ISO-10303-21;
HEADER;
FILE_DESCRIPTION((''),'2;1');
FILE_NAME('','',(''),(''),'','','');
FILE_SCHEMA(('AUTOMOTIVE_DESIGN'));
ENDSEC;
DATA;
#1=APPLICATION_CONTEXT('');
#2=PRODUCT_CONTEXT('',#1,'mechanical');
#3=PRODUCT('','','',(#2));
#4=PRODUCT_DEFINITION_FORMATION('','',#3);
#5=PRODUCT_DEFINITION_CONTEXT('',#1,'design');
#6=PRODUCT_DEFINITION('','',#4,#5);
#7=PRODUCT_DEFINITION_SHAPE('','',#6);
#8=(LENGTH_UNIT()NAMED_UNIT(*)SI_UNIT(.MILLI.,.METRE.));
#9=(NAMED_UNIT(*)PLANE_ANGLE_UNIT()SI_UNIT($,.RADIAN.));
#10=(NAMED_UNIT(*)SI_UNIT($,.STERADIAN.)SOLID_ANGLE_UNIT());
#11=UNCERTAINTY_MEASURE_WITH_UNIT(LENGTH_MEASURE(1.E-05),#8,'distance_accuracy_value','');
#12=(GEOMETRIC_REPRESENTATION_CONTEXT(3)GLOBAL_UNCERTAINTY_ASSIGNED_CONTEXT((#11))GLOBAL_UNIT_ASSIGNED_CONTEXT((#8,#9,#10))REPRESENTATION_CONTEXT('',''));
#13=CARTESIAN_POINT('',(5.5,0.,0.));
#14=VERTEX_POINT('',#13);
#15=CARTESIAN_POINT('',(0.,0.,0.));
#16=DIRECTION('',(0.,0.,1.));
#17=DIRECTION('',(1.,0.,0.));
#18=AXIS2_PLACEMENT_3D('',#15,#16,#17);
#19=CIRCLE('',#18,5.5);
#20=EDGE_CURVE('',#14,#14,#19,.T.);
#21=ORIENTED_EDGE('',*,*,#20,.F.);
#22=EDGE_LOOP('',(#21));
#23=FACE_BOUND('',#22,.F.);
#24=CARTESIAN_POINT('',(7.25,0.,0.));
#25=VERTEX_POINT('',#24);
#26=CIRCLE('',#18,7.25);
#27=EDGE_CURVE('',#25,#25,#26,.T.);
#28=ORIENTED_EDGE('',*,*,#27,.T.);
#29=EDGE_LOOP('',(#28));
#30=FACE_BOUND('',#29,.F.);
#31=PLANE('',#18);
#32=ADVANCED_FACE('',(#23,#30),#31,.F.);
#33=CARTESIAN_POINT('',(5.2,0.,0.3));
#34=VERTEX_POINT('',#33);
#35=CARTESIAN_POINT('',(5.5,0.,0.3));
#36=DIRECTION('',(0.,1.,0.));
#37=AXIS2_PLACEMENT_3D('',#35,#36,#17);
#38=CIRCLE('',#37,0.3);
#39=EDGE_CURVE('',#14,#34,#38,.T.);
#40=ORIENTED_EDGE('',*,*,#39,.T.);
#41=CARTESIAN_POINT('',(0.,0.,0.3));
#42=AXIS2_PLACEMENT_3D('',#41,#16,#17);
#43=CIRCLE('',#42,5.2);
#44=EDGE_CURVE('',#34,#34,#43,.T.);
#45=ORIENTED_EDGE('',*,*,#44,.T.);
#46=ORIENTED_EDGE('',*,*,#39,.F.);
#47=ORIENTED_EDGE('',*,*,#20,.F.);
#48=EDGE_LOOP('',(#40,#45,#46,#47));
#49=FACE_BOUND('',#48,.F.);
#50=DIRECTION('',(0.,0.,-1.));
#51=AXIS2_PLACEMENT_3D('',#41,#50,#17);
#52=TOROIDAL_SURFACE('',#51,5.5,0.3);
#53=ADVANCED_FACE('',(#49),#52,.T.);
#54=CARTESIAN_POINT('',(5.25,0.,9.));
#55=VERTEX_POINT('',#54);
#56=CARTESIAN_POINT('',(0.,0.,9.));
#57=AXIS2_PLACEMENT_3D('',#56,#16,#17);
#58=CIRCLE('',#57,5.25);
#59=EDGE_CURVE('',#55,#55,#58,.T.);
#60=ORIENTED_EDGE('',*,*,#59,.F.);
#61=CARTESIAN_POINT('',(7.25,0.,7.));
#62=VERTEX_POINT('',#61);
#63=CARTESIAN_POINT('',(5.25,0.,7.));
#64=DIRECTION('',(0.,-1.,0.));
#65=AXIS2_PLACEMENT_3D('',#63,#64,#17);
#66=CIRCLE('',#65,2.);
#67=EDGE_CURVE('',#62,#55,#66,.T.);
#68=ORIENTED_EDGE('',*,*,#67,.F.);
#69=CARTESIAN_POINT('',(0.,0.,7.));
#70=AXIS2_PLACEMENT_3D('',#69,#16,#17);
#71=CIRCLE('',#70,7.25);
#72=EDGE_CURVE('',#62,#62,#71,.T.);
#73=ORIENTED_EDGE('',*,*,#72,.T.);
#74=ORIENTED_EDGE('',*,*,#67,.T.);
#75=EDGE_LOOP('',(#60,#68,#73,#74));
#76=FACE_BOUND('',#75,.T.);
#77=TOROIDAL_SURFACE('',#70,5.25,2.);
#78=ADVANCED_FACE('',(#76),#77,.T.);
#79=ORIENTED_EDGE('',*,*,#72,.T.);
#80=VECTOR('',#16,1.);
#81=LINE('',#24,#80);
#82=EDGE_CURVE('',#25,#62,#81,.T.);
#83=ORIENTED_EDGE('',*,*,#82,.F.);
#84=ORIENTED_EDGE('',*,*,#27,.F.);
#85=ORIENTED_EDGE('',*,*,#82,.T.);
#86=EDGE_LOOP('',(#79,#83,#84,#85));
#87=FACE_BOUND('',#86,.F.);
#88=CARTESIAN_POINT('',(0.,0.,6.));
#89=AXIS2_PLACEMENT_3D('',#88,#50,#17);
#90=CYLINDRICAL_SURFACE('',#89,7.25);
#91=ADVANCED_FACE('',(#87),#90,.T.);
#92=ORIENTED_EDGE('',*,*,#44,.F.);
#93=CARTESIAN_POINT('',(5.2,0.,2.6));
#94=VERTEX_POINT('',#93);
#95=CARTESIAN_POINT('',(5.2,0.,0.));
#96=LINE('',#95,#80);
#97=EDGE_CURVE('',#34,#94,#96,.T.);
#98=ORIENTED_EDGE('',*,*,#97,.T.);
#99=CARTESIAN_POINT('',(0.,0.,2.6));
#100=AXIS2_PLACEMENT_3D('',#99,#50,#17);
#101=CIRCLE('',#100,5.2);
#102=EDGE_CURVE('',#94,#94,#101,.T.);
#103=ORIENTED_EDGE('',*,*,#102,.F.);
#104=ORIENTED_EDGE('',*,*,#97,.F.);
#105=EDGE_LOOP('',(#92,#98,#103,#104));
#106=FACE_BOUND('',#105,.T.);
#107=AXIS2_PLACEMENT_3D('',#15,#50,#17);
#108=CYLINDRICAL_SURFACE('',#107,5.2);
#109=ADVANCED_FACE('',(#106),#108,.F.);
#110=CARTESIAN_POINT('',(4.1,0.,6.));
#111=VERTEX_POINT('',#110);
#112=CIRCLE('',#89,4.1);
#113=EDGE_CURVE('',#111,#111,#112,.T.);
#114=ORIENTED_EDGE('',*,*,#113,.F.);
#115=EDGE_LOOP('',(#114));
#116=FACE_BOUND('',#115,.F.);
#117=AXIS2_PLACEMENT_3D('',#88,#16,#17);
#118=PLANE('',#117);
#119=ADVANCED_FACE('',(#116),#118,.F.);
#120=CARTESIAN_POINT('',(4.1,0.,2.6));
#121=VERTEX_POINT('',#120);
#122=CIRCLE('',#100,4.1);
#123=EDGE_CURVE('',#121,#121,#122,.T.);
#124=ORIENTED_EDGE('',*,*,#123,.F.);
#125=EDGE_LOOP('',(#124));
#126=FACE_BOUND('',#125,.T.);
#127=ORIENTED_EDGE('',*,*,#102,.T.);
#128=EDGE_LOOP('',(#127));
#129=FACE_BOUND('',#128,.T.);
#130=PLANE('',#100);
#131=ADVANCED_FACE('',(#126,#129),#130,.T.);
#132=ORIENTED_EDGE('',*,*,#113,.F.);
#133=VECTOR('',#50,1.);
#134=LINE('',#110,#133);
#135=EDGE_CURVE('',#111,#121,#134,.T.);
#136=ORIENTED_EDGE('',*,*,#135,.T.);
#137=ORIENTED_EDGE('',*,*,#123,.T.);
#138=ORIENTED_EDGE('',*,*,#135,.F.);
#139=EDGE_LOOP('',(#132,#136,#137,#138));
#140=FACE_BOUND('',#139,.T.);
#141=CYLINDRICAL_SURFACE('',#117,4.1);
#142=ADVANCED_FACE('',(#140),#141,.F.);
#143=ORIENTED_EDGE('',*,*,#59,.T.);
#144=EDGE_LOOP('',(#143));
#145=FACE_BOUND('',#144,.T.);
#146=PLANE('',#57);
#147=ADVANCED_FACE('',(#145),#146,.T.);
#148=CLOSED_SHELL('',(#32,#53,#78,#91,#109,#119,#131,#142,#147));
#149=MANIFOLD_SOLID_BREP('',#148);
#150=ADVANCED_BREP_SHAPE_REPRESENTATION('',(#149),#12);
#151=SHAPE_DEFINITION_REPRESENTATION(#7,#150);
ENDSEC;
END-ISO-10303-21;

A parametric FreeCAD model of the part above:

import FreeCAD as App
import Part
import Sketcher
Q = App.Units.Quantity


def edges_at(feature, points):
    """Names of the edges that pass closest to the given points."""
    edges = feature.Shape.Edges
    near = lambda p: min(range(len(edges)), key=lambda i: edges[i].distToShape(Part.Vertex(*p))[0])
    return sorted({f"Edge{near(p) + 1}" for p in points})

doc = App.newDocument("Part")
params = doc.addObject("Spreadsheet::Sheet", "Params")
for row, (alias, value) in enumerate([
    ("sketch1_diameter", "14.5 mm"),
    ("sketch1_diameter2", "10.4 mm"),
    ("pad1_length", "6 mm"),
    ("sketch2_diameter", "14.5 mm"),
    ("pad2_length", "3 mm"),
    ("fillet_radius", "2 mm"),
    ("fillet2_radius", "0.3 mm"),
    ("sketch3_diameter", "10.4 mm"),
    ("sketch3_diameter2", "8.2 mm"),
    ("pad3_length", "3.4 mm"),
], start=1):
    params.set(f"A{row}", alias)
    params.set(f"B{row}", "=" + value)
    params.setAlias(f"B{row}", alias)

body = doc.addObject("PartDesign::Body", "Body")

sketch1 = doc.addObject("Sketcher::SketchObject", "Sketch")
body.addObject(sketch1)
sketch1.AttachmentSupport = (doc.XY_Plane, [""])
sketch1.MapMode = "FlatFace"
sketch1.addGeometry([
    Part.Circle(App.Vector(0, 0, 0), App.Vector(0, 0, 1), 7),
    Part.Circle(App.Vector(0, 0, 0), App.Vector(0, 0, 1), 5),
], False)
sketch1.addConstraint([
    Sketcher.Constraint("Coincident", 0, 3, -1, 1),
    Sketcher.Constraint("Coincident", 1, 3, -1, 1),
    Sketcher.Constraint("Diameter", 0, Q("14.5 mm")),
    Sketcher.Constraint("Diameter", 1, Q("10.4 mm")),
])
sketch1.setExpression("Constraints[2]", "Params.sketch1_diameter")
sketch1.setExpression("Constraints[3]", "Params.sketch1_diameter2")
pad1 = doc.addObject("PartDesign::Pad", "Pad")
body.addObject(pad1)
pad1.Profile = sketch1
pad1.setExpression("Length", "Params.pad1_length")

sketch2 = doc.addObject("Sketcher::SketchObject", "Sketch001")
body.addObject(sketch2)
sketch2.AttachmentSupport = (doc.XY_Plane, [""])
sketch2.MapMode = "FlatFace"
sketch2.AttachmentOffset = App.Placement(App.Vector(0, 0, 6), App.Rotation())
sketch2.addGeometry(Part.Circle(App.Vector(0, 0, 0), App.Vector(0, 0, 1), 7), False)
sketch2.addConstraint([
    Sketcher.Constraint("Coincident", 0, 3, -1, 1),
    Sketcher.Constraint("Diameter", 0, Q("14.5 mm")),
])
sketch2.setExpression("Constraints[1]", "Params.sketch2_diameter")
pad2 = doc.addObject("PartDesign::Pad", "Pad001")
body.addObject(pad2)
pad2.Profile = sketch2
pad2.setExpression("Length", "Params.pad2_length")
doc.recompute()

fillet = doc.addObject("PartDesign::Fillet", "Fillet")
body.addObject(fillet)
fillet.Base = (pad2, edges_at(pad2, [(-7.25, 0, 9)]))
fillet.setExpression("Radius", "Params.fillet_radius")
doc.recompute()

fillet2 = doc.addObject("PartDesign::Fillet", "Fillet001")
body.addObject(fillet2)
fillet2.Base = (fillet, edges_at(fillet, [(-5.2, 0, 0)]))
fillet2.setExpression("Radius", "Params.fillet2_radius")

sketch3 = doc.addObject("Sketcher::SketchObject", "Sketch002")
body.addObject(sketch3)
sketch3.AttachmentSupport = (doc.XY_Plane, [""])
sketch3.MapMode = "FlatFace"
sketch3.AttachmentOffset = App.Placement(App.Vector(0, 0, 6), App.Rotation())
sketch3.addGeometry([
    Part.Circle(App.Vector(0, 0, 0), App.Vector(0, 0, 1), 5.2),
    Part.Circle(App.Vector(0, 0, 0), App.Vector(0, 0, 1), 4.1),
], False)
sketch3.addConstraint([
    Sketcher.Constraint("Coincident", 0, 3, -1, 1),
    Sketcher.Constraint("Coincident", 1, 3, -1, 1),
    Sketcher.Constraint("Diameter", 0, Q("10.4 mm")),
    Sketcher.Constraint("Diameter", 1, Q("8.2 mm")),
])
sketch3.setExpression("Constraints[2]", "Params.sketch3_diameter")
sketch3.setExpression("Constraints[3]", "Params.sketch3_diameter2")
pad3 = doc.addObject("PartDesign::Pad", "Pad002")
body.addObject(pad3)
pad3.Profile = sketch3
pad3.setExpression("Length", "Params.pad3_length")
pad3.Reversed = True

doc.recompute()
